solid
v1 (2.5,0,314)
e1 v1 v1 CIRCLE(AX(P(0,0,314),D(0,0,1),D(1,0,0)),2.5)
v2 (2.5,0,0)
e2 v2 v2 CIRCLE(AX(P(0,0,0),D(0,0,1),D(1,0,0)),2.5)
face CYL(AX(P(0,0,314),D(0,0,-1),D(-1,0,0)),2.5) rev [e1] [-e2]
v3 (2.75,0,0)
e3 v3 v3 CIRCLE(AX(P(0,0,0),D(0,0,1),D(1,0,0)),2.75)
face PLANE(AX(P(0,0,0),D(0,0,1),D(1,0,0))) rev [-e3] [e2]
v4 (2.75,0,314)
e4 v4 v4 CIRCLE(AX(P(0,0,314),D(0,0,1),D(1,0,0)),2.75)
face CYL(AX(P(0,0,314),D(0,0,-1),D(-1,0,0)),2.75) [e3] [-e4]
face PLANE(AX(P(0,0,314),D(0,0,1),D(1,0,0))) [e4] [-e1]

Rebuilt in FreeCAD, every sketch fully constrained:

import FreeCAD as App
import Part
import Sketcher
from FreeCAD import Vector

doc = App.newDocument("Part")
body = doc.addObject("PartDesign::Body", "Body")

# Sketch on XY plane
sketch1 = body.newObject("Sketcher::SketchObject", "Sketch")
sketch1.AttachmentSupport = (doc.getObject("XY_Plane"), [""])
sketch1.MapMode = "FlatFace"
sketch1.addGeometry(Part.Circle(Vector(0, 0, 0), Vector(0, 0, 1), 2.8), False)
sketch1.addGeometry(Part.Circle(Vector(0, 0, 0), Vector(0, 0, 1), 2.5), False)
sketch1.addConstraint(Sketcher.Constraint("Coincident", 0, 3, -1, 1))
sketch1.addConstraint(Sketcher.Constraint("Coincident", 1, 3, -1, 1))
sketch1.addConstraint(Sketcher.Constraint("Diameter", 1, 5.0))
sketch1.addConstraint(Sketcher.Constraint("Diameter", 0, 5.5))
pad1 = body.newObject("PartDesign::Pad", "Pad")
pad1.Profile = sketch1
pad1.Length = 314

doc.recompute()
